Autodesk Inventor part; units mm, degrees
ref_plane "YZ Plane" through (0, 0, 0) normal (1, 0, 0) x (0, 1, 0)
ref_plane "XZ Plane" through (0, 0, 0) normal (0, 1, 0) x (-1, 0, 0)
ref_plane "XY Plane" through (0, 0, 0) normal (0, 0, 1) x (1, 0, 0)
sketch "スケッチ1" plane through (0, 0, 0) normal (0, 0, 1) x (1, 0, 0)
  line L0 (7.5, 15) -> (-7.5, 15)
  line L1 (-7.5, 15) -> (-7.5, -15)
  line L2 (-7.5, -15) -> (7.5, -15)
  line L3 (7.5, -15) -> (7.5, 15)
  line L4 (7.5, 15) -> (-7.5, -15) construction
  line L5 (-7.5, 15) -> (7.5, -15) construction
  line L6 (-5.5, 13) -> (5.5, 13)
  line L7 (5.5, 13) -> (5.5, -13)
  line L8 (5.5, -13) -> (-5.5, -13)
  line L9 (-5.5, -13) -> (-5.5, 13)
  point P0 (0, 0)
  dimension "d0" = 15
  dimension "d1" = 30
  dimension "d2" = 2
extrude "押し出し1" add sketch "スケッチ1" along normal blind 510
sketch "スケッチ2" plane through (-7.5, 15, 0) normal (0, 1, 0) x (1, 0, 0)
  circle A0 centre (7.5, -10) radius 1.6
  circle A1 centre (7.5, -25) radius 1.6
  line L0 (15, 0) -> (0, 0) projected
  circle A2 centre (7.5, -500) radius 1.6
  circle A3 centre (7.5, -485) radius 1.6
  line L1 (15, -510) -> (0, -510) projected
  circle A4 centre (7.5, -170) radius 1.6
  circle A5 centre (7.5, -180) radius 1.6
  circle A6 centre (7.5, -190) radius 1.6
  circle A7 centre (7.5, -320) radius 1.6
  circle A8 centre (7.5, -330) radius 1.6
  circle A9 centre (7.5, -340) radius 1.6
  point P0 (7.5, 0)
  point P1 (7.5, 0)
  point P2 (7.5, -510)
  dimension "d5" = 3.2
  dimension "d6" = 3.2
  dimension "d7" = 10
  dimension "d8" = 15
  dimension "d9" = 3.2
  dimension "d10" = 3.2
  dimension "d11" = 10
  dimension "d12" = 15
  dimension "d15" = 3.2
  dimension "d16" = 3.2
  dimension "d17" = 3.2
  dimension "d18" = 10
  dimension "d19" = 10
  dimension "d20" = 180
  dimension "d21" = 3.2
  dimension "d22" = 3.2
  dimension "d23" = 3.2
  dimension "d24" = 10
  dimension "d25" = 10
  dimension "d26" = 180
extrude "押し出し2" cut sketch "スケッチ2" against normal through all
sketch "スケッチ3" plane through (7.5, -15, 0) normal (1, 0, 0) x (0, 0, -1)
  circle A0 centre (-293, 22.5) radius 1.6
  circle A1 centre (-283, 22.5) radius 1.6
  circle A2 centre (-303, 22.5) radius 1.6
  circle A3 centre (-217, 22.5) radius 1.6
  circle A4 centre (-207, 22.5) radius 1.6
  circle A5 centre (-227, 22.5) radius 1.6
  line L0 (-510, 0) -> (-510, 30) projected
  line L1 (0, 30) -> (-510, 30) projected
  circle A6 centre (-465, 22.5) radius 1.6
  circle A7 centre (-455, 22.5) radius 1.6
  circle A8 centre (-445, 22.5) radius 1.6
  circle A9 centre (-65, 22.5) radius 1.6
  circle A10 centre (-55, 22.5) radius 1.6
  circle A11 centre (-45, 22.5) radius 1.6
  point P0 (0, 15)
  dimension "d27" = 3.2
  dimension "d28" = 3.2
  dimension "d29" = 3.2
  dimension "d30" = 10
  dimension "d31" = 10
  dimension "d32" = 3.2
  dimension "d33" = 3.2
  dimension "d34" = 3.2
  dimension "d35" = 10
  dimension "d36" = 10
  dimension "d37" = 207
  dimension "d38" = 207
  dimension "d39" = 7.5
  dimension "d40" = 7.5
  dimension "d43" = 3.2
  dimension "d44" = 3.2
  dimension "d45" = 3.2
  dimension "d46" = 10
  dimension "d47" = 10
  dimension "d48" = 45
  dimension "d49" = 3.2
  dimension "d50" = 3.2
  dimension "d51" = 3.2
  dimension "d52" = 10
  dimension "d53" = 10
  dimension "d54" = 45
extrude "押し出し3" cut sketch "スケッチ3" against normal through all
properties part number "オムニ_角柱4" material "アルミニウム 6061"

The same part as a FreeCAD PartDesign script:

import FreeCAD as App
import Part
import Sketcher

doc = App.newDocument("Part")
params = doc.addObject("Spreadsheet::Sheet", "Params")
for row, (alias, value) in enumerate([
    ("sketch1_width", "15 mm"),
    ("sketch1_height", "30 mm"),
    ("pad1_length", "510 mm"),
    ("sketch2_diameter", "3.2 mm"),
    ("sketch3_diameter", "3.2 mm"),
], start=1):
    params.set(f"A{row}", alias)
    params.set(f"B{row}", "=" + value)
    params.setAlias(f"B{row}", alias)

body = doc.addObject("PartDesign::Body", "Body")

sketch1 = body.newObject("Sketcher::SketchObject", "Sketch")
sketch1.AttachmentSupport = (doc.getObject("XY_Plane"), [""])
sketch1.MapMode = "FlatFace"
sketch1.addGeometry([
    Part.LineSegment(App.Vector(8, -15, 0), App.Vector(8, 15, 0)),
    Part.LineSegment(App.Vector(8, 15, 0), App.Vector(-8, 15, 0)),
    Part.LineSegment(App.Vector(-8, 15, 0), App.Vector(-8, -15, 0)),
    Part.LineSegment(App.Vector(-8, -15, 0), App.Vector(8, -15, 0)),
    Part.LineSegment(App.Vector(-6, -13, 0), App.Vector(-6, 13, 0)),
    Part.LineSegment(App.Vector(-6, 13, 0), App.Vector(6, 13, 0)),
    Part.LineSegment(App.Vector(6, 13, 0), App.Vector(6, -13, 0)),
    Part.LineSegment(App.Vector(6, -13, 0), App.Vector(-6, -13, 0)),
], False)
sketch1.addConstraint([
    Sketcher.Constraint("Coincident", 0, 2, 1, 1),
    Sketcher.Constraint("Coincident", 1, 2, 2, 1),
    Sketcher.Constraint("Coincident", 2, 2, 3, 1),
    Sketcher.Constraint("Coincident", 3, 2, 0, 1),
    Sketcher.Constraint("Coincident", 4, 2, 5, 1),
    Sketcher.Constraint("Coincident", 5, 2, 6, 1),
    Sketcher.Constraint("Coincident", 6, 2, 7, 1),
    Sketcher.Constraint("Coincident", 7, 2, 4, 1),
    Sketcher.Constraint("Vertical", 0),
    Sketcher.Constraint("Horizontal", 1),
    Sketcher.Constraint("Vertical", 2),
    Sketcher.Constraint("Horizontal", 3),
    Sketcher.Constraint("Vertical", 4),
    Sketcher.Constraint("Horizontal", 5),
    Sketcher.Constraint("Vertical", 6),
    Sketcher.Constraint("Horizontal", 7),
    Sketcher.Constraint("Symmetric", 0, 2, 2, 2, -1, 1),
    Sketcher.Constraint("Symmetric", 4, 2, 6, 2, -1, 1),
    Sketcher.Constraint("DistanceX", 1, 2, 1, 1, 15.0),
    Sketcher.Constraint("DistanceY", 0, 1, 0, 2, 30.0),
    Sketcher.Constraint("DistanceX", 1, 2, 4, 2, 2.0),
    Sketcher.Constraint("DistanceY", 4, 2, 1, 2, 2.0),
])
sketch1.setExpression("Constraints[18]", "Params.sketch1_width")
sketch1.setExpression("Constraints[19]", "Params.sketch1_height")
pad1 = body.newObject("PartDesign::Pad", "Pad")
pad1.Profile = sketch1
pad1.setExpression("Length", "Params.pad1_length")

sketch2 = body.newObject("Sketcher::SketchObject", "Sketch001")
sketch2.AttachmentSupport = (doc.getObject("XZ_Plane"), [""])
sketch2.MapMode = "FlatFace"
sketch2.AttachmentOffset = App.Placement(App.Vector(0, 0, -15), App.Rotation())
sketch2.addGeometry([
    Part.Circle(App.Vector(0, 10, 0), App.Vector(0, 0, 1), 1.6),
    Part.Circle(App.Vector(0, 25, 0), App.Vector(0, 0, 1), 1.6),
    Part.Circle(App.Vector(0, 500, 0), App.Vector(0, 0, 1), 1.6),
    Part.Circle(App.Vector(0, 485, 0), App.Vector(0, 0, 1), 1.6),
    Part.Circle(App.Vector(0, 170, 0), App.Vector(0, 0, 1), 1.6),
    Part.Circle(App.Vector(0, 180, 0), App.Vector(0, 0, 1), 1.6),
    Part.Circle(App.Vector(0, 190, 0), App.Vector(0, 0, 1), 1.6),
    Part.Circle(App.Vector(0, 320, 0), App.Vector(0, 0, 1), 1.6),
    Part.Circle(App.Vector(0, 330, 0), App.Vector(0, 0, 1), 1.6),
    Part.Circle(App.Vector(0, 340, 0), App.Vector(0, 0, 1), 1.6),
], False)
sketch2.addConstraint([
    Sketcher.Constraint("Equal", 0, 1),
    Sketcher.Constraint("Equal", 1, 2),
    Sketcher.Constraint("Equal", 2, 3),
    Sketcher.Constraint("Equal", 3, 4),
    Sketcher.Constraint("Equal", 4, 5),
    Sketcher.Constraint("Equal", 5, 6),
    Sketcher.Constraint("Equal", 6, 7),
    Sketcher.Constraint("Equal", 7, 8),
    Sketcher.Constraint("Equal", 8, 9),
    Sketcher.Constraint("PointOnObject", 0, 3, -2),
    Sketcher.Constraint("PointOnObject", 1, 3, -2),
    Sketcher.Constraint("PointOnObject", 2, 3, -2),
    Sketcher.Constraint("PointOnObject", 3, 3, -2),
    Sketcher.Constraint("PointOnObject", 4, 3, -2),
    Sketcher.Constraint("PointOnObject", 5, 3, -2),
    Sketcher.Constraint("PointOnObject", 6, 3, -2),
    Sketcher.Constraint("PointOnObject", 7, 3, -2),
    Sketcher.Constraint("PointOnObject", 8, 3, -2),
    Sketcher.Constraint("PointOnObject", 9, 3, -2),
    Sketcher.Constraint("Diameter", 0, 3.2),
    Sketcher.Constraint("DistanceY", -1, 1, 0, 3, 10.0),
    Sketcher.Constraint("DistanceY", -1, 1, 5, 3, 180.0),
    Sketcher.Constraint("DistanceY", 0, 3, 1, 3, 15.0),
    Sketcher.Constraint("DistanceY", 3, 3, 2, 3, 15.0),
    Sketcher.Constraint("DistanceY", 4, 3, 5, 3, 10.0),
    Sketcher.Constraint("DistanceY", 5, 3, 6, 3, 10.0),
    Sketcher.Constraint("DistanceY", 7, 3, 2, 3, 180.0),
    Sketcher.Constraint("DistanceY", 7, 3, 8, 3, 10.0),
    Sketcher.Constraint("DistanceY", 8, 3, 9, 3, 10.0),
    Sketcher.Constraint("DistanceY", -1, 1, 2, 3, 500.0),
])
sketch2.setExpression("Constraints[19]", "Params.sketch2_diameter")
pocket1 = body.newObject("PartDesign::Pocket", "Pocket")
pocket1.Profile = sketch2
pocket1.Type = "ThroughAll"
pocket1.Reversed = True

sketch3 = body.newObject("Sketcher::SketchObject", "Sketch002")
sketch3.AttachmentSupport = (doc.getObject("YZ_Plane"), [""])
sketch3.MapMode = "FlatFace"
sketch3.AttachmentOffset = App.Placement(App.Vector(0, 0, 7.5), App.Rotation())
sketch3.addGeometry([
    Part.Circle(App.Vector(7.5, 293, 0), App.Vector(0, 0, 1), 1.6),
    Part.Circle(App.Vector(7.5, 283, 0), App.Vector(0, 0, 1), 1.6),
    Part.Circle(App.Vector(7.5, 303, 0), App.Vector(0, 0, 1), 1.6),
    Part.Circle(App.Vector(7.5, 217, 0), App.Vector(0, 0, 1), 1.6),
    Part.Circle(App.Vector(7.5, 207, 0), App.Vector(0, 0, 1), 1.6),
    Part.Circle(App.Vector(7.5, 227, 0), App.Vector(0, 0, 1), 1.6),
    Part.Circle(App.Vector(7.5, 465, 0), App.Vector(0, 0, 1), 1.6),
    Part.Circle(App.Vector(7.5, 455, 0), App.Vector(0, 0, 1), 1.6),
    Part.Circle(App.Vector(7.5, 445, 0), App.Vector(0, 0, 1), 1.6),
    Part.Circle(App.Vector(7.5, 65, 0), App.Vector(0, 0, 1), 1.6),
    Part.Circle(App.Vector(7.5, 55, 0), App.Vector(0, 0, 1), 1.6),
    Part.Circle(App.Vector(7.5, 45, 0), App.Vector(0, 0, 1), 1.6),
], False)
sketch3.addConstraint([
    Sketcher.Constraint("Equal", 0, 1),
    Sketcher.Constraint("Equal", 1, 2),
    Sketcher.Constraint("Equal", 2, 3),
    Sketcher.Constraint("Equal", 3, 4),
    Sketcher.Constraint("Equal", 4, 5),
    Sketcher.Constraint("Equal", 5, 6),
    Sketcher.Constraint("Equal", 6, 7),
    Sketcher.Constraint("Equal", 7, 8),
    Sketcher.Constraint("Equal", 8, 9),
    Sketcher.Constraint("Equal", 9, 10),
    Sketcher.Constraint("Equal", 10, 11),
    Sketcher.Constraint("Vertical", 0, 3, 1, 3),
    Sketcher.Constraint("Vertical", 1, 3, 2, 3),
    Sketcher.Constraint("Vertical", 2, 3, 3, 3),
    Sketcher.Constraint("Vertical", 3, 3, 4, 3),
    Sketcher.Constraint("Vertical", 4, 3, 5, 3),
    Sketcher.Constraint("Vertical", 5, 3, 6, 3),
    Sketcher.Constraint("Vertical", 6, 3, 7, 3),
    Sketcher.Constraint("Vertical", 7, 3, 8, 3),
    Sketcher.Constraint("Vertical", 8, 3, 9, 3),
    Sketcher.Constraint("Vertical", 9, 3, 10, 3),
    Sketcher.Constraint("Vertical", 10, 3, 11, 3),
    Sketcher.Constraint("Diameter", 0, 3.2),
    Sketcher.Constraint("DistanceY", -1, 1, 4, 3, 207.0),
    Sketcher.Constraint("DistanceY", -1, 1, 11, 3, 45.0),
    Sketcher.Constraint("DistanceY", 1, 3, 0, 3, 10.0),
    Sketcher.Constraint("DistanceY", 0, 3, 2, 3, 10.0),
    Sketcher.Constraint("DistanceY", 4, 3, 3, 3, 10.0),
    Sketcher.Constraint("DistanceY", 3, 3, 5, 3, 10.0),
    Sketcher.Constraint("DistanceY", 7, 3, 6, 3, 10.0),
    Sketcher.Constraint("DistanceY", 8, 3, 7, 3, 10.0),
    Sketcher.Constraint("DistanceY", 10, 3, 9, 3, 10.0),
    Sketcher.Constraint("DistanceY", 11, 3, 10, 3, 10.0),
    Sketcher.Constraint("DistanceX", -1, 1, 0, 3, 7.5),
    Sketcher.Constraint("DistanceY", -1, 1, 0, 3, 293.0),
    Sketcher.Constraint("DistanceY", -1, 1, 6, 3, 465.0),
])
sketch3.setExpression("Constraints[22]", "Params.sketch3_diameter")
pocket2 = body.newObject("PartDesign::Pocket", "Pocket001")
pocket2.Profile = sketch3
pocket2.Type = "ThroughAll"

doc.recompute()
